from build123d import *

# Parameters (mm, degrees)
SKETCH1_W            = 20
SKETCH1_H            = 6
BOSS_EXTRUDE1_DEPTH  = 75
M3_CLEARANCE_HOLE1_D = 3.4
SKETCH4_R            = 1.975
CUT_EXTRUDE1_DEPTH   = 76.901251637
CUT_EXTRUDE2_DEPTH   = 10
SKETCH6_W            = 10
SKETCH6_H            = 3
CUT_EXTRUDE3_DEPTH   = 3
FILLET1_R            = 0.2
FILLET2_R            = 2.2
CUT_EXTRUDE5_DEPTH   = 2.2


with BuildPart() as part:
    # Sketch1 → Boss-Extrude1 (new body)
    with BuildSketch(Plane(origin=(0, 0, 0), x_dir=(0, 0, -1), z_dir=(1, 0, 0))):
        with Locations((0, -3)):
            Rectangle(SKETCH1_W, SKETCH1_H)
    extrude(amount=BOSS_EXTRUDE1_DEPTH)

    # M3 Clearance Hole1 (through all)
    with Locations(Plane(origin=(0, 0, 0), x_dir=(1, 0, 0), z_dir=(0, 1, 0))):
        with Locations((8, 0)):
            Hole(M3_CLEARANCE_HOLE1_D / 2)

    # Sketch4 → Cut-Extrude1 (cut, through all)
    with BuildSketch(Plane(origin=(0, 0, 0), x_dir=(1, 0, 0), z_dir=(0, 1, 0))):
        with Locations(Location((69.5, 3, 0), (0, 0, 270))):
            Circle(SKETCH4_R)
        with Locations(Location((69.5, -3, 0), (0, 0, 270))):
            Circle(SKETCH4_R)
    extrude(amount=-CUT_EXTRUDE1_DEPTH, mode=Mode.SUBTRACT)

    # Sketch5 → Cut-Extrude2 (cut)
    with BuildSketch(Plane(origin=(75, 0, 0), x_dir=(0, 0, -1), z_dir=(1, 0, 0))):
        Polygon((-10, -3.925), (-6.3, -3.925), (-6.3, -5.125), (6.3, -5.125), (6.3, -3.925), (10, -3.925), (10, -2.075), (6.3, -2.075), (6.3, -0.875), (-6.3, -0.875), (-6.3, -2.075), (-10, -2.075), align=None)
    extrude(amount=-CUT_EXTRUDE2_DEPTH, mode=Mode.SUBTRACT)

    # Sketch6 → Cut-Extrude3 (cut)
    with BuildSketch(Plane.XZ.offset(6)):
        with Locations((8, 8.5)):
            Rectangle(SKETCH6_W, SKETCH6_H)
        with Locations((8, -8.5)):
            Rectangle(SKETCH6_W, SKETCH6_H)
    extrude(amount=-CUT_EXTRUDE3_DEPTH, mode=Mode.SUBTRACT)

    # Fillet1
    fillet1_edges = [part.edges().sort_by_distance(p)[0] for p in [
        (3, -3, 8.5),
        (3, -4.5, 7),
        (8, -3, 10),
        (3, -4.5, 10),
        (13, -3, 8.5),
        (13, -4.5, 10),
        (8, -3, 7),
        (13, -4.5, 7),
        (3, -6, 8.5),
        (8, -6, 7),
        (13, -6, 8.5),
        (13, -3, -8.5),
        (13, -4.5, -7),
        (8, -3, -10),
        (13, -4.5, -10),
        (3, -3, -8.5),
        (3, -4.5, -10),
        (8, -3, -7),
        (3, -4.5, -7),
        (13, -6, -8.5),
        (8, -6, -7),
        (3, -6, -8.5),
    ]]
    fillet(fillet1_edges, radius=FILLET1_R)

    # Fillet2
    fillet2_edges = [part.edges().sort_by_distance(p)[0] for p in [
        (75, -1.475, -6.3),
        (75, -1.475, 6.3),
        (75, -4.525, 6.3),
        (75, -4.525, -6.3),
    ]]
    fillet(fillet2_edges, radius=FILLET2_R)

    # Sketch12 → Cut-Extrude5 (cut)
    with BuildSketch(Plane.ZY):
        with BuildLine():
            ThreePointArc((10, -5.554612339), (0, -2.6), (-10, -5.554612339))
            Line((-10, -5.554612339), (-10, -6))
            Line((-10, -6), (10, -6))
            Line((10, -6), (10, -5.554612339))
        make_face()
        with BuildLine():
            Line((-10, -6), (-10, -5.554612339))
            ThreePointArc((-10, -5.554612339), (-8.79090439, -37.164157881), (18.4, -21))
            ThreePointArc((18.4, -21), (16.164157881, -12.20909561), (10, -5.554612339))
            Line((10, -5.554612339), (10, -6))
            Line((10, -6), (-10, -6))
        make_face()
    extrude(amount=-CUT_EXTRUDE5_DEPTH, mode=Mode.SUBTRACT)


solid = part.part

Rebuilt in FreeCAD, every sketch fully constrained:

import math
import FreeCAD as App
import Part
import Sketcher

V = App.Vector
Q = App.Units.Quantity


def edges_at(feature, points):
    """Names of the edges that pass closest to the given points."""
    edges = feature.Shape.Edges
    near = lambda p: min(range(len(edges)), key=lambda i: edges[i].distToShape(Part.Vertex(*p))[0])
    return sorted({f"Edge{near(p) + 1}" for p in points})

doc = App.newDocument("Part")
body = doc.addObject("PartDesign::Body", "Body")

# Sketch on YZ plane
sketch1 = doc.addObject("Sketcher::SketchObject", "Sketch")
body.addObject(sketch1)
sketch1.AttachmentSupport = (doc.YZ_Plane, [""])
sketch1.MapMode = "FlatFace"
sketch1.addGeometry(Part.LineSegment(V(0, 10, 0), V(-6, 10, 0)), False)
sketch1.addGeometry(Part.LineSegment(V(-6, 10, 0), V(-6, -10, 0)), False)
sketch1.addGeometry(Part.LineSegment(V(-6, -10, 0), V(0, -10, 0)), False)
sketch1.addGeometry(Part.LineSegment(V(0, -10, 0), V(0, 10, 0)), False)
sketch1.addConstraint(Sketcher.Constraint("Coincident", 0, 2, 1, 1))
sketch1.addConstraint(Sketcher.Constraint("Coincident", 1, 2, 2, 1))
sketch1.addConstraint(Sketcher.Constraint("Coincident", 2, 2, 3, 1))
sketch1.addConstraint(Sketcher.Constraint("Coincident", 3, 2, 0, 1))
sketch1.addConstraint(Sketcher.Constraint("Horizontal", 0))
sketch1.addConstraint(Sketcher.Constraint("Vertical", 1))
sketch1.addConstraint(Sketcher.Constraint("Horizontal", 2))
sketch1.addConstraint(Sketcher.Constraint("Vertical", 3))
sketch1.addConstraint(Sketcher.Constraint("Symmetric", 2, 2, 3, 2, -1, 1))
sketch1.addConstraint(Sketcher.Constraint("DistanceX", 0, 2, 0, 1, Q("6 mm")))
sketch1.addConstraint(Sketcher.Constraint("DistanceY", 1, 2, 1, 1, Q("20 mm")))
pad1 = doc.addObject("PartDesign::Pad", "Pad")
body.addObject(pad1)
pad1.Profile = sketch1
pad1.Length = 75

# Sketch on XZ plane
sketch2 = doc.addObject("Sketcher::SketchObject", "Sketch001")
body.addObject(sketch2)
sketch2.AttachmentSupport = (doc.XZ_Plane, [""])
sketch2.MapMode = "FlatFace"
sketch2.addGeometry(Part.Circle(V(8, 0, 0), V(0, 0, 1), 1.7), False)
sketch2.addConstraint(Sketcher.Constraint("PointOnObject", 0, 3, -1))
sketch2.addConstraint(Sketcher.Constraint("Diameter", 0, Q("3.4 mm")))
sketch2.addConstraint(Sketcher.Constraint("DistanceX", -1, 1, 0, 3, Q("8 mm")))
doc.recompute()
hole = doc.addObject("PartDesign::Hole", "Hole")
body.addObject(hole)
hole.Profile = sketch2
hole.ThreadType = "None"
hole.Diameter = 3.4
hole.DepthType = "ThroughAll"
hole.Reversed = True

# Sketch on XZ plane
sketch3 = doc.addObject("Sketcher::SketchObject", "Sketch002")
body.addObject(sketch3)
sketch3.AttachmentSupport = (doc.XZ_Plane, [""])
sketch3.MapMode = "FlatFace"
sketch3.addGeometry(Part.Circle(V(69.5, -3, 0), V(0, 0, 1), 2), False)
sketch3.addGeometry(Part.Circle(V(69.5, 3, 0), V(0, 0, 1), 2), False)
sketch3.addConstraint(Sketcher.Constraint("Equal", 0, 1))
sketch3.addConstraint(Sketcher.Constraint("Symmetric", 0, 3, 1, 3, -1))
sketch3.addConstraint(Sketcher.Constraint("Diameter", 0, Q("3.95 mm")))
sketch3.addConstraint(Sketcher.Constraint("DistanceY", 0, 3, -1, 1, Q("3 mm")))
sketch3.addConstraint(Sketcher.Constraint("DistanceX", -1, 1, 0, 3, Q("69.5 mm")))
pocket1 = doc.addObject("PartDesign::Pocket", "Pocket")
body.addObject(pocket1)
pocket1.Profile = sketch3
pocket1.Type = "ThroughAll"
pocket1.Reversed = True

# Sketch on YZ plane
sketch4 = doc.addObject("Sketcher::SketchObject", "Sketch003")
body.addObject(sketch4)
sketch4.AttachmentSupport = (doc.YZ_Plane, [""])
sketch4.MapMode = "FlatFace"
sketch4.AttachmentOffset = App.Placement(V(0, 0, 75), App.Rotation())
sketch4.addGeometry(Part.LineSegment(V(-3.9, 10, 0), V(-3.9, 6.3, 0)), False)
sketch4.addGeometry(Part.LineSegment(V(-3.9, 6.3, 0), V(-5.1, 6.3, 0)), False)
sketch4.addGeometry(Part.LineSegment(V(-5.1, 6.3, 0), V(-5.1, -6.3, 0)), False)
sketch4.addGeometry(Part.LineSegment(V(-5.1, -6.3, 0), V(-3.9, -6.3, 0)), False)
sketch4.addGeometry(Part.LineSegment(V(-3.9, -6.3, 0), V(-3.9, -10, 0)), False)
sketch4.addGeometry(Part.LineSegment(V(-3.9, -10, 0), V(-2.1, -10, 0)), False)
sketch4.addGeometry(Part.LineSegment(V(-2.1, -10, 0), V(-2.1, -6.3, 0)), False)
sketch4.addGeometry(Part.LineSegment(V(-2.1, -6.3, 0), V(-0.9, -6.3, 0)), False)
sketch4.addGeometry(Part.LineSegment(V(-0.9, -6.3, 0), V(-0.9, 6.3, 0)), False)
sketch4.addGeometry(Part.LineSegment(V(-0.9, 6.3, 0), V(-2.1, 6.3, 0)), False)
sketch4.addGeometry(Part.LineSegment(V(-2.1, 6.3, 0), V(-2.1, 10, 0)), False)
sketch4.addGeometry(Part.LineSegment(V(-2.1, 10, 0), V(-3.9, 10, 0)), False)
sketch4.addConstraint(Sketcher.Constraint("Coincident", 0, 2, 1, 1))
sketch4.addConstraint(Sketcher.Constraint("Coincident", 1, 2, 2, 1))
sketch4.addConstraint(Sketcher.Constraint("Coincident", 2, 2, 3, 1))
sketch4.addConstraint(Sketcher.Constraint("Coincident", 3, 2, 4, 1))
sketch4.addConstraint(Sketcher.Constraint("Coincident", 4, 2, 5, 1))
sketch4.addConstraint(Sketcher.Constraint("Coincident", 5, 2, 6, 1))
sketch4.addConstraint(Sketcher.Constraint("Coincident", 6, 2, 7, 1))
sketch4.addConstraint(Sketcher.Constraint("Coincident", 7, 2, 8, 1))
sketch4.addConstraint(Sketcher.Constraint("Coincident", 8, 2, 9, 1))
sketch4.addConstraint(Sketcher.Constraint("Coincident", 9, 2, 10, 1))
sketch4.addConstraint(Sketcher.Constraint("Coincident", 10, 2, 11, 1))
sketch4.addConstraint(Sketcher.Constraint("Coincident", 11, 2, 0, 1))
sketch4.addConstraint(Sketcher.Constraint("Vertical", 0))
sketch4.addConstraint(Sketcher.Constraint("Horizontal", 1))
sketch4.addConstraint(Sketcher.Constraint("Vertical", 2))
sketch4.addConstraint(Sketcher.Constraint("Horizontal", 3))
sketch4.addConstraint(Sketcher.Constraint("Vertical", 4))
sketch4.addConstraint(Sketcher.Constraint("Horizontal", 5))
sketch4.addConstraint(Sketcher.Constraint("Vertical", 6))
sketch4.addConstraint(Sketcher.Constraint("Horizontal", 7))
sketch4.addConstraint(Sketcher.Constraint("Vertical", 8))
sketch4.addConstraint(Sketcher.Constraint("Horizontal", 9))
sketch4.addConstraint(Sketcher.Constraint("Vertical", 10))
sketch4.addConstraint(Sketcher.Constraint("Horizontal", 11))
sketch4.addConstraint(Sketcher.Constraint("Symmetric", 0, 2, 3, 2, -1))
sketch4.addConstraint(Sketcher.Constraint("Symmetric", 6, 2, 9, 2, -1))
sketch4.addConstraint(Sketcher.Constraint("Horizontal", 3, 2, 6, 2))
sketch4.addConstraint(Sketcher.Constraint("Equal", 3, 7))
sketch4.addConstraint(Sketcher.Constraint("Equal", 0, 4))
sketch4.addConstraint(Sketcher.Constraint("DistanceX", 1, 2, 1, 1, Q("1.2 mm")))
sketch4.addConstraint(Sketcher.Constraint("DistanceY", 0, 2, 0, 1, Q("3.7 mm")))
sketch4.addConstraint(Sketcher.Constraint("DistanceY", 2, 2, 2, 1, Q("12.6 mm")))
sketch4.addConstraint(Sketcher.Constraint("DistanceX", 5, 1, 5, 2, Q("1.85 mm")))
sketch4.addConstraint(Sketcher.Constraint("DistanceX", 0, 2, -1, 1, Q("3.925 mm")))
pocket2 = doc.addObject("PartDesign::Pocket", "Pocket001")
body.addObject(pocket2)
pocket2.Profile = sketch4
pocket2.Length = 10

# Sketch on XZ plane
sketch5 = doc.addObject("Sketcher::SketchObject", "Sketch004")
body.addObject(sketch5)
sketch5.AttachmentSupport = (doc.XZ_Plane, [""])
sketch5.MapMode = "FlatFace"
sketch5.AttachmentOffset = App.Placement(V(0, 0, 6), App.Rotation())
sketch5.addGeometry(Part.LineSegment(V(3, 10, 0), V(3, 7, 0)), False)
sketch5.addGeometry(Part.LineSegment(V(3, 7, 0), V(13, 7, 0)), False)
sketch5.addGeometry(Part.LineSegment(V(13, 7, 0), V(13, 10, 0)), False)
sketch5.addGeometry(Part.LineSegment(V(13, 10, 0), V(3, 10, 0)), False)
sketch5.addGeometry(Part.LineSegment(V(3, -7, 0), V(3, -10, 0)), False)
sketch5.addGeometry(Part.LineSegment(V(3, -10, 0), V(13, -10, 0)), False)
sketch5.addGeometry(Part.LineSegment(V(13, -10, 0), V(13, -7, 0)), False)
sketch5.addGeometry(Part.LineSegment(V(13, -7, 0), V(3, -7, 0)), False)
sketch5.addConstraint(Sketcher.Constraint("Coincident", 0, 2, 1, 1))
sketch5.addConstraint(Sketcher.Constraint("Coincident", 1, 2, 2, 1))
sketch5.addConstraint(Sketcher.Constraint("Coincident", 2, 2, 3, 1))
sketch5.addConstraint(Sketcher.Constraint("Coincident", 3, 2, 0, 1))
sketch5.addConstraint(Sketcher.Constraint("Coincident", 4, 2, 5, 1))
sketch5.addConstraint(Sketcher.Constraint("Coincident", 5, 2, 6, 1))
sketch5.addConstraint(Sketcher.Constraint("Coincident", 6, 2, 7, 1))
sketch5.addConstraint(Sketcher.Constraint("Coincident", 7, 2, 4, 1))
sketch5.addConstraint(Sketcher.Constraint("Vertical", 0))
sketch5.addConstraint(Sketcher.Constraint("Horizontal", 1))
sketch5.addConstraint(Sketcher.Constraint("Vertical", 2))
sketch5.addConstraint(Sketcher.Constraint("Horizontal", 3))
sketch5.addConstraint(Sketcher.Constraint("Vertical", 4))
sketch5.addConstraint(Sketcher.Constraint("Horizontal", 5))
sketch5.addConstraint(Sketcher.Constraint("Vertical", 6))
sketch5.addConstraint(Sketcher.Constraint("Horizontal", 7))
sketch5.addConstraint(Sketcher.Constraint("Symmetric", 3, 2, 4, 2, -1))
sketch5.addConstraint(Sketcher.Constraint("Symmetric", 1, 2, 6, 2, -1))
sketch5.addConstraint(Sketcher.Constraint("DistanceX", 1, 1, 1, 2, Q("10 mm")))
sketch5.addConstraint(Sketcher.Constraint("DistanceY", 0, 2, 0, 1, Q("3 mm")))
sketch5.addConstraint(Sketcher.Constraint("DistanceX", -1, 1, 0, 2, Q("3 mm")))
sketch5.addConstraint(Sketcher.Constraint("DistanceY", -1, 1, 0, 2, Q("7 mm")))
pocket3 = doc.addObject("PartDesign::Pocket", "Pocket002")
body.addObject(pocket3)
pocket3.Profile = sketch5
pocket3.Length = 3
doc.recompute()

fillet = doc.addObject("PartDesign::Fillet", "Fillet")
body.addObject(fillet)
fillet.Base = (pocket3, edges_at(pocket3, [
    (3, -3, 8.5),
    (3, -4.5, 7),
    (8, -3, 10),
    (3, -4.5, 10),
    (13, -3, 8.5),
    (13, -4.5, 10),
    (8, -3, 7),
    (13, -4.5, 7),
    (3, -6, 8.5),
    (8, -6, 7),
    (13, -6, 8.5),
    (13, -3, -8.5),
    (13, -4.5, -7),
    (8, -3, -10),
    (13, -4.5, -10),
    (3, -3, -8.5),
    (3, -4.5, -10),
    (8, -3, -7),
    (3, -4.5, -7),
    (13, -6, -8.5),
    (8, -6, -7),
    (3, -6, -8.5),
]))
fillet.Radius = 0.2
doc.recompute()

fillet2 = doc.addObject("PartDesign::Fillet", "Fillet001")
body.addObject(fillet2)
fillet2.Base = (fillet, edges_at(fillet, [
    (75, -1.475, -6.3),
    (75, -1.475, 6.3),
    (75, -4.525, 6.3),
    (75, -4.525, -6.3),
]))
fillet2.Radius = 2.2

# Sketch on YZ plane
sketch6 = doc.addObject("Sketcher::SketchObject", "Sketch005")
body.addObject(sketch6)
sketch6.AttachmentSupport = (doc.YZ_Plane, [""])
sketch6.MapMode = "FlatFace"
sketch6.addGeometry(Part.ArcOfCircle(Part.Circle(V(-21, 0, 0), V(0, 0, 1), 18), math.radians(-33), math.radians(33)), False)
sketch6.addGeometry(Part.ArcOfCircle(Part.Circle(V(-21, 0, 0), V(0, 0, 1), 18), math.radians(90), math.radians(327)), False)
sketch6.addGeometry(Part.ArcOfCircle(Part.Circle(V(-21, 0, 0), V(0, 0, 1), 18), math.radians(33), math.radians(90)), False)
sketch6.addConstraint(Sketcher.Constraint("Tangent", 0, 1, 1, 2))
sketch6.addConstraint(Sketcher.Constraint("Tangent", 1, 1, 2, 2))
sketch6.addConstraint(Sketcher.Constraint("Tangent", 2, 1, 0, 2))
sketch6.addConstraint(Sketcher.Constraint("Symmetric", 0, 1, 2, 1, -1))
sketch6.addConstraint(Sketcher.Constraint("Vertical", 2, 3, 1, 1))
sketch6.addConstraint(Sketcher.Constraint("Radius", 0, Q("18.4 mm")))
sketch6.addConstraint(Sketcher.Constraint("DistanceX", 0, 3, -1, 1, Q("21 mm")))
sketch6.addConstraint(Sketcher.Constraint("DistanceY", 0, 1, -1, 1, Q("10 mm")))
pocket4 = doc.addObject("PartDesign::Pocket", "Pocket003")
body.addObject(pocket4)
pocket4.Profile = sketch6
pocket4.Length = 2.2
pocket4.Reversed = True

doc.recompute()
